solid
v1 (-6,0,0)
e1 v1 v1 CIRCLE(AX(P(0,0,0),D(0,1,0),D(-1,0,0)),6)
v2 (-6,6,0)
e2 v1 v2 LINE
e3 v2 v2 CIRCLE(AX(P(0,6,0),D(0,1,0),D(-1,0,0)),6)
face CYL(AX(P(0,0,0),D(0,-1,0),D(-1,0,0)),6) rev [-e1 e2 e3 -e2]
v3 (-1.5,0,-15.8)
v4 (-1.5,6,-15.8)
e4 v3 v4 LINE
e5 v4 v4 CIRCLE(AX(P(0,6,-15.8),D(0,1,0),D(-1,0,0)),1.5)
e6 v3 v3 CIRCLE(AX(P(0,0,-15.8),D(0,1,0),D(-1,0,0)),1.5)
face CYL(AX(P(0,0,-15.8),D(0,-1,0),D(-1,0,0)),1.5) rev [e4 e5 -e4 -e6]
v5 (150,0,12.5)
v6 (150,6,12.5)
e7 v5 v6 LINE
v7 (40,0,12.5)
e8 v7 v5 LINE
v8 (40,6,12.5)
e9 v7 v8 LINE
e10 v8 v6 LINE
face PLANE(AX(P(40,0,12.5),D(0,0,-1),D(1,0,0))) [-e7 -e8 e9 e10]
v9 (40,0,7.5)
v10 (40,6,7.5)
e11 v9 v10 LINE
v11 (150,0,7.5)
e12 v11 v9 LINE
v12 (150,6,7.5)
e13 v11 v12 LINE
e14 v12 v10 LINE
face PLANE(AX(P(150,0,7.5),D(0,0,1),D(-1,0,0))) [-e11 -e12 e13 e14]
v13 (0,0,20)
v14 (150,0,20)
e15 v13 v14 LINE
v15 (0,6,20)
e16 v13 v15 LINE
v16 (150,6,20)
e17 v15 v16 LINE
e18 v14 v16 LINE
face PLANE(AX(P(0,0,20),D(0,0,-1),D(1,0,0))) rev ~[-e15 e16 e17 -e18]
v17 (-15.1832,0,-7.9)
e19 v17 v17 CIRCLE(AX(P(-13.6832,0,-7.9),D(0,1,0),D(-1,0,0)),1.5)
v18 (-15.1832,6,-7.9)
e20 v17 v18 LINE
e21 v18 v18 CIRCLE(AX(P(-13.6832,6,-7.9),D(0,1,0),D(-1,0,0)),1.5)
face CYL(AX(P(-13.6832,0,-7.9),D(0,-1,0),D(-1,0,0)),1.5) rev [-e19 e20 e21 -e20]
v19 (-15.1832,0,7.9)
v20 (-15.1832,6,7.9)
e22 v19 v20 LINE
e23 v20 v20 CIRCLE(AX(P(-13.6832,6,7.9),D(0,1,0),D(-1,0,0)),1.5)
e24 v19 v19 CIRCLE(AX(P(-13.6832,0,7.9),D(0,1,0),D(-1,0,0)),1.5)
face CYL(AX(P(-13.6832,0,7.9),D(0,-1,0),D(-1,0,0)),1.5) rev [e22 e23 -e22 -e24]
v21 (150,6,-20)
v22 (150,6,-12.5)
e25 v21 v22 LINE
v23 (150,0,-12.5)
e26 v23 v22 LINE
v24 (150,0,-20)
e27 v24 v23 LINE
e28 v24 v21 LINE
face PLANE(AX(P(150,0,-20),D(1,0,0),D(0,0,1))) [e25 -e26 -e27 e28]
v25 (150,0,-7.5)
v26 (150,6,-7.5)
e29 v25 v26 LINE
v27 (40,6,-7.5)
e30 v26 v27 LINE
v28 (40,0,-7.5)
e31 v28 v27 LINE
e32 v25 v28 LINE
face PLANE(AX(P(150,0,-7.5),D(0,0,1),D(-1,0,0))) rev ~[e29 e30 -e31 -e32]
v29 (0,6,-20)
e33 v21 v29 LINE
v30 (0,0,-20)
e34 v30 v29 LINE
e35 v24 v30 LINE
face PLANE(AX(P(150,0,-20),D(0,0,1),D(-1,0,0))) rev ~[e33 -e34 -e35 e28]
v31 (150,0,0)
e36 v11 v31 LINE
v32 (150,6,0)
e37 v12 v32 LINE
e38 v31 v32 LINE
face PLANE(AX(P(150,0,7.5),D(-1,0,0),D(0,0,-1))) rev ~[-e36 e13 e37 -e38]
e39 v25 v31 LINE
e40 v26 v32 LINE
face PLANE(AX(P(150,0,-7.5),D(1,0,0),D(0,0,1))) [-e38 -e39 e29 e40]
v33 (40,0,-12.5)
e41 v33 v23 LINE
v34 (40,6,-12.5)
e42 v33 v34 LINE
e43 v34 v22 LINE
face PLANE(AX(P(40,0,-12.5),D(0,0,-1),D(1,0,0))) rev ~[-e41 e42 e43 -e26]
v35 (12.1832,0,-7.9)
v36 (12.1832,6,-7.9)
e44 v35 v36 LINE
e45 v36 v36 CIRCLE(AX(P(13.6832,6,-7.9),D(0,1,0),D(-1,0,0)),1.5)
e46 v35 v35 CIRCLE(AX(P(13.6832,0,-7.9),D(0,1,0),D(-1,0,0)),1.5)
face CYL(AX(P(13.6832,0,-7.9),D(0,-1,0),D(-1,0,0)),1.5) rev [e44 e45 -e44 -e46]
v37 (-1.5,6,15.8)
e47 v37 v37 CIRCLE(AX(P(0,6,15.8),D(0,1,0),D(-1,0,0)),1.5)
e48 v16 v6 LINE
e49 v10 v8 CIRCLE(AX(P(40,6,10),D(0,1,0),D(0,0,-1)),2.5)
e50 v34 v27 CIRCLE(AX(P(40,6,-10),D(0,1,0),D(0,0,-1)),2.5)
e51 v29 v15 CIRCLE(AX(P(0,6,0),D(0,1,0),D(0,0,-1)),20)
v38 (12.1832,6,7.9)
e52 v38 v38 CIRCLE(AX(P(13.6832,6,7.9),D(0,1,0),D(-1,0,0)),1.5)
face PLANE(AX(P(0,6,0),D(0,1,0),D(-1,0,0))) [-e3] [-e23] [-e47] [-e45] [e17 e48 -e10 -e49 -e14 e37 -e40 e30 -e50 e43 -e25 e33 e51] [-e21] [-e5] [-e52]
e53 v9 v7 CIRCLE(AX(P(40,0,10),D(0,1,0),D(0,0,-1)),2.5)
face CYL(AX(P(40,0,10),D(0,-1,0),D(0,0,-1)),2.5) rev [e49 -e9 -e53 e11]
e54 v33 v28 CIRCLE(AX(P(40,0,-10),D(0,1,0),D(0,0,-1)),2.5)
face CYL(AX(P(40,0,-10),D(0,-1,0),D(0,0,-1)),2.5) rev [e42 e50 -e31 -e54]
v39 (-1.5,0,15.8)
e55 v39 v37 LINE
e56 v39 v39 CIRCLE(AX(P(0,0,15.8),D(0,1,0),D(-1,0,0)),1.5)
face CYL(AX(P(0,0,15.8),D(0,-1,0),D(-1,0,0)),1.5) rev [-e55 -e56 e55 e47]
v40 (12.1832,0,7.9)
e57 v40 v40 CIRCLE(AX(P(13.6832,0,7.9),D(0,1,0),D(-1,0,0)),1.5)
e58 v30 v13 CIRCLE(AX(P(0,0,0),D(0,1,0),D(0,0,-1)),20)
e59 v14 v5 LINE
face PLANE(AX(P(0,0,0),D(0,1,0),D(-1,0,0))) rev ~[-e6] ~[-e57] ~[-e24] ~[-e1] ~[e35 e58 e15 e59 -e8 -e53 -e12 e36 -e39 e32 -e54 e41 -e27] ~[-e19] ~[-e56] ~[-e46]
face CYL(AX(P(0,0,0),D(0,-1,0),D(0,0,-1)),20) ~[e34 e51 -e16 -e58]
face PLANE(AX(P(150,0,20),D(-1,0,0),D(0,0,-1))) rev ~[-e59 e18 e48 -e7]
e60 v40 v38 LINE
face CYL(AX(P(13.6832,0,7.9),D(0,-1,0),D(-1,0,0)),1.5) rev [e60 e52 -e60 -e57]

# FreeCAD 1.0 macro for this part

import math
import FreeCAD as App
import Part
import Sketcher

doc = App.newDocument("Part")
body = doc.addObject("PartDesign::Body", "Body")

# Sketch on XZ plane
sketch1 = body.newObject("Sketcher::SketchObject", "Sketch")
sketch1.AttachmentSupport = (doc.getObject("XZ_Plane"), [""])
sketch1.MapMode = "FlatFace"
sketch1.addGeometry([
    Part.LineSegment(App.Vector(150, -20, 0), App.Vector(0, -20, 0)),  # 0
    Part.ArcOfCircle(Part.Circle(App.Vector(0, 0, 0), App.Vector(0, 0, 1), 20), math.radians(90), math.radians(270)),  # 1
    Part.LineSegment(App.Vector(0, 20, 0), App.Vector(150, 20, 0)),  # 2
    Part.LineSegment(App.Vector(150, 20, 0), App.Vector(150, 12.5, 0)),  # 3
    Part.LineSegment(App.Vector(150, 12.5, 0), App.Vector(40, 12.5, 0)),  # 4
    Part.ArcOfCircle(Part.Circle(App.Vector(40, 10, 0), App.Vector(0, 0, 1), 2.5), math.radians(90), math.radians(270)),  # 5
    Part.LineSegment(App.Vector(40, 7.5, 0), App.Vector(150, 7.5, 0)),  # 6
    Part.LineSegment(App.Vector(150, 7.5, 0), App.Vector(150, -7.5, 0)),  # 7
    Part.LineSegment(App.Vector(150, -7.5, 0), App.Vector(40, -7.5, 0)),  # 8
    Part.ArcOfCircle(Part.Circle(App.Vector(40, -10, 0), App.Vector(0, 0, 1), 2.5), math.radians(90), math.radians(270)),  # 9
    Part.LineSegment(App.Vector(40, -12.5, 0), App.Vector(150, -12.5, 0)),  # 10
    Part.LineSegment(App.Vector(150, -12.5, 0), App.Vector(150, -20, 0)),  # 11
    Part.Circle(App.Vector(0, -15.8, 0), App.Vector(0, 0, 1), 1.5),  # 12
    Part.Circle(App.Vector(13.6832, -7.9, 0), App.Vector(0, 0, 1), 1.5),  # 13
    Part.Circle(App.Vector(-13.6832, -7.9, 0), App.Vector(0, 0, 1), 1.5),  # 14
    Part.Circle(App.Vector(0, 0, 0), App.Vector(0, 0, 1), 6),  # 15
    Part.Circle(App.Vector(13.6832, 7.9, 0), App.Vector(0, 0, 1), 1.5),  # 16
    Part.Circle(App.Vector(-13.6832, 7.9, 0), App.Vector(0, 0, 1), 1.5),  # 17
    Part.Circle(App.Vector(0, 15.8, 0), App.Vector(0, 0, 1), 1.5),  # 18
], False)
sketch1.addConstraint([
    Sketcher.Constraint("Tangent", 0, 2, 1, 2),
    Sketcher.Constraint("Tangent", 1, 1, 2, 1),
    Sketcher.Constraint("Coincident", 2, 2, 3, 1),
    Sketcher.Constraint("Coincident", 3, 2, 4, 1),
    Sketcher.Constraint("Tangent", 4, 2, 5, 1),
    Sketcher.Constraint("Tangent", 5, 2, 6, 1),
    Sketcher.Constraint("Coincident", 6, 2, 7, 1),
    Sketcher.Constraint("Coincident", 7, 2, 8, 1),
    Sketcher.Constraint("Tangent", 8, 2, 9, 1),
    Sketcher.Constraint("Tangent", 9, 2, 10, 1),
    Sketcher.Constraint("Coincident", 10, 2, 11, 1),
    Sketcher.Constraint("Coincident", 11, 2, 0, 1),
    Sketcher.Constraint("Horizontal", 0),
    Sketcher.Constraint("Horizontal", 2),
    Sketcher.Constraint("Vertical", 3),
    Sketcher.Constraint("Horizontal", 4),
    Sketcher.Constraint("Horizontal", 6),
    Sketcher.Constraint("Vertical", 7),
    Sketcher.Constraint("Horizontal", 8),
    Sketcher.Constraint("Horizontal", 10),
    Sketcher.Constraint("Vertical", 11),
    Sketcher.Constraint("Coincident", 1, 3, -1, 1),
    Sketcher.Constraint("Coincident", 15, 3, -1, 1),
    Sketcher.Constraint("Equal", 5, 9),
    Sketcher.Constraint("Equal", 12, 13),
    Sketcher.Constraint("Equal", 13, 14),
    Sketcher.Constraint("Equal", 14, 16),
    Sketcher.Constraint("Equal", 16, 17),
    Sketcher.Constraint("Equal", 17, 18),
    Sketcher.Constraint("Symmetric", 14, 3, 16, 3, -1, 1),
    Sketcher.Constraint("Symmetric", 13, 3, 17, 3, -1, 1),
    Sketcher.Constraint("Symmetric", 12, 3, 18, 3, -1, 1),
    Sketcher.Constraint("Symmetric", 13, 3, 14, 3, -2),
    Sketcher.Constraint("Symmetric", 5, 3, 9, 3, -1),
    Sketcher.Constraint("PointOnObject", 12, 3, -2),
    Sketcher.Constraint("Vertical", 3, 2, 6, 2),
    Sketcher.Constraint("Vertical", 7, 2, 10, 2),
    Sketcher.Constraint("Radius", 1, 20.0),
    Sketcher.Constraint("Radius", 5, 2.5),
    Sketcher.Constraint("Diameter", 12, 3.0),
    Sketcher.Constraint("Diameter", 15, 12.0),
    Sketcher.Constraint("DistanceY", 9, 3, 5, 3, 20.0),
    Sketcher.Constraint("DistanceX", 0, 2, 0, 1, 150.0),
    Sketcher.Constraint("DistanceX", 4, 2, 4, 1, 110.0),
    Sketcher.Constraint("DistanceY", 12, 3, -1, 1, 15.8),
    Sketcher.Constraint("DistanceY", 13, 3, -1, 1, 7.9),
    Sketcher.Constraint("DistanceX", -1, 1, 13, 3, 13.6832),
])
pad1 = body.newObject("PartDesign::Pad", "Pad")
pad1.Profile = sketch1
pad1.Length = 6
pad1.Reversed = True

doc.recompute()
